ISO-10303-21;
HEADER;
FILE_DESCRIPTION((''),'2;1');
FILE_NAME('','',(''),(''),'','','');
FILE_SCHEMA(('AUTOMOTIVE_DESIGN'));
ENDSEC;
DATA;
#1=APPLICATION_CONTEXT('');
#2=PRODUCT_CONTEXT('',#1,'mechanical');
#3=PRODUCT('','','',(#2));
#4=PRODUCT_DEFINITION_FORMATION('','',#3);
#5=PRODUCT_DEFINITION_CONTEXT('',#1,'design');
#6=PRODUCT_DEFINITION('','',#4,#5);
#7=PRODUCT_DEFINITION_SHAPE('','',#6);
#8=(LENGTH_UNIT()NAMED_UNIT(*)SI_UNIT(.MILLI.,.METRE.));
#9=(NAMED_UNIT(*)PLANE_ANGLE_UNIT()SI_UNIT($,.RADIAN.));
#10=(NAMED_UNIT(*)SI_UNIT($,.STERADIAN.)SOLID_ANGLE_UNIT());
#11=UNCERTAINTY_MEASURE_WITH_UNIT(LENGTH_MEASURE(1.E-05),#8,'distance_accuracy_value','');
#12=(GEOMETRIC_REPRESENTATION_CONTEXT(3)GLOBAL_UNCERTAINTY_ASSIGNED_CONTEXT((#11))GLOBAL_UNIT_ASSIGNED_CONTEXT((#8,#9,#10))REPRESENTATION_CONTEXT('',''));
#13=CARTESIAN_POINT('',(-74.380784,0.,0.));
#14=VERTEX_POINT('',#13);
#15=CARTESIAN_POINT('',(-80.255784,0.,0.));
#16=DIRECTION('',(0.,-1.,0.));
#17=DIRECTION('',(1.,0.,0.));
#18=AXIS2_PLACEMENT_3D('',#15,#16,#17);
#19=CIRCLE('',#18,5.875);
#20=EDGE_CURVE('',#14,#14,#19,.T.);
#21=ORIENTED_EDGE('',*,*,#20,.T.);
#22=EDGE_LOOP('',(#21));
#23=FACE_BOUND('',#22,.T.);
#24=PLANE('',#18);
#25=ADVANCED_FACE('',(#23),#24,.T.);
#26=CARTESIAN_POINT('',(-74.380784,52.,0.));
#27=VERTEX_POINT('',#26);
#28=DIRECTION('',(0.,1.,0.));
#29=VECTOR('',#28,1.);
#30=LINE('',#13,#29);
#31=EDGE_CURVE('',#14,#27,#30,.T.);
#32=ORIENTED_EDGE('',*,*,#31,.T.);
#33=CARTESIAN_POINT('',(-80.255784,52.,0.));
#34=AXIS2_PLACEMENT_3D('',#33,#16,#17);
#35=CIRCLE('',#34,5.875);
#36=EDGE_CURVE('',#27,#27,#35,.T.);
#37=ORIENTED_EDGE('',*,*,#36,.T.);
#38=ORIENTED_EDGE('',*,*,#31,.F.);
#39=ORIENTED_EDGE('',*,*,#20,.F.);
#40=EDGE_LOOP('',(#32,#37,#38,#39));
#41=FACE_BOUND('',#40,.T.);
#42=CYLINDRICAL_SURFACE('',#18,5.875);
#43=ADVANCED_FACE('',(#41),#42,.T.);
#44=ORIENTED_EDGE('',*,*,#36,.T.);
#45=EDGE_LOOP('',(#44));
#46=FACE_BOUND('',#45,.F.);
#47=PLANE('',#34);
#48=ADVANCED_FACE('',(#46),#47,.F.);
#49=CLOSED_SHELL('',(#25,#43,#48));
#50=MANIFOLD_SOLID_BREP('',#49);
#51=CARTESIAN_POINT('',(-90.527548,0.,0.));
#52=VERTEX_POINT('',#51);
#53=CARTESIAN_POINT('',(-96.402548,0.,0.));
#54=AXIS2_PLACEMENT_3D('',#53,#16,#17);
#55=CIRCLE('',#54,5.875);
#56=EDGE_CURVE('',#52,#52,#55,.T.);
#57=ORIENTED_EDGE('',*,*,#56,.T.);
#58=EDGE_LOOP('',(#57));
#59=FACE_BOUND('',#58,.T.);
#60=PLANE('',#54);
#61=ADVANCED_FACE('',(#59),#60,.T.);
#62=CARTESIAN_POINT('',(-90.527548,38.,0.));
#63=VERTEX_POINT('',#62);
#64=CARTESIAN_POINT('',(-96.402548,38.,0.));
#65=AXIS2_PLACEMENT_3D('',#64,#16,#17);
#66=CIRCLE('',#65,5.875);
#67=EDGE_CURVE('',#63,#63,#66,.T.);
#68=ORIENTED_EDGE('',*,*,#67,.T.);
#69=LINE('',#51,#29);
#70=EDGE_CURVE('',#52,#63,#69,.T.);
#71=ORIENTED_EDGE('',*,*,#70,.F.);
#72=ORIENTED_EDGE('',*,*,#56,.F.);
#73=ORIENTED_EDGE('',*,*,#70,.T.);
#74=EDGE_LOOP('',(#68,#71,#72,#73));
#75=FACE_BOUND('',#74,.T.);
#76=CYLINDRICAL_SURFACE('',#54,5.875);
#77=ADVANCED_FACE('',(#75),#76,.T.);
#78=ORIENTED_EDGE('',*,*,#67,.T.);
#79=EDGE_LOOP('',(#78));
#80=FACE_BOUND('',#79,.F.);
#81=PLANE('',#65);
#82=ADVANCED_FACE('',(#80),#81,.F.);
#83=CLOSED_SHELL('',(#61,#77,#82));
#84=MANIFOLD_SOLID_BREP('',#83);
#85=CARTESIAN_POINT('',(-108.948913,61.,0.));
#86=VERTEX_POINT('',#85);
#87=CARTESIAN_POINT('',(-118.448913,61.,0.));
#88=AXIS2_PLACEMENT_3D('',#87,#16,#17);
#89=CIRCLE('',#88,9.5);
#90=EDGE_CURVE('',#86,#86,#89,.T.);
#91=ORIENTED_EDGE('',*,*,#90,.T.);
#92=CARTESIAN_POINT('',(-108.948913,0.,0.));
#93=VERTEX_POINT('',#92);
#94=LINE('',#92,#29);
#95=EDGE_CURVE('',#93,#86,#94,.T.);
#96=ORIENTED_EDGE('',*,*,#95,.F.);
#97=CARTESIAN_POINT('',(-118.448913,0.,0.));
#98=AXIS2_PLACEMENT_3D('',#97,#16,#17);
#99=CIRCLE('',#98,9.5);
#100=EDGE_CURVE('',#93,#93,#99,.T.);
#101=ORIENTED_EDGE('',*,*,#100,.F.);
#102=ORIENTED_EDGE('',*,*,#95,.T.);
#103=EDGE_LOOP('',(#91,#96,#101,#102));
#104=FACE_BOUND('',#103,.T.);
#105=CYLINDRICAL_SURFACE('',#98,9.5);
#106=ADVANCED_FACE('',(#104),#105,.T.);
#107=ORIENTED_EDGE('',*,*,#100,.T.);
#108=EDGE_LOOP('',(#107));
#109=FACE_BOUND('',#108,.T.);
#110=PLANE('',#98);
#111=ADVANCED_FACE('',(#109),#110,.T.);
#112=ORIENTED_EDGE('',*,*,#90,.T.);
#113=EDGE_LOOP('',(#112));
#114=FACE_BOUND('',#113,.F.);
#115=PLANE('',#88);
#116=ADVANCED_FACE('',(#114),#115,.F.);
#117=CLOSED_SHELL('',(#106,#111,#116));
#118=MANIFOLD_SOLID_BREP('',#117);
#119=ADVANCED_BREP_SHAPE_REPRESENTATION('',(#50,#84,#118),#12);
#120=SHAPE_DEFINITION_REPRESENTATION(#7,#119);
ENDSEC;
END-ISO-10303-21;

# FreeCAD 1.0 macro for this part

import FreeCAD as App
import Part
import Sketcher

V = App.Vector

doc = App.newDocument("Part")
body = doc.addObject("PartDesign::Body", "Body")

# Sketch on XZ plane
sketch1 = body.newObject("Sketcher::SketchObject", "Sketch")
sketch1.AttachmentSupport = (doc.getObject("XZ_Plane"), [""])
sketch1.MapMode = "FlatFace"
sketch1.addGeometry(Part.Circle(V(-118, 0, 0), V(0, 0, 1), 10), False)
sketch1.addConstraint([
    Sketcher.Constraint("PointOnObject", 0, 3, -1),
    Sketcher.Constraint("Diameter", 0, 19.0),
    Sketcher.Constraint("DistanceX", 0, 3, -1, 1, 118.448913),
])
pad1 = body.newObject("PartDesign::Pad", "Pad")
pad1.Profile = sketch1
pad1.Length = 61
pad1.Reversed = True
body2 = doc.addObject("PartDesign::Body", "Body001")

# Sketch on XZ plane
sketch2 = body2.newObject("Sketcher::SketchObject", "Sketch001")
sketch2.AttachmentSupport = (doc.getObject("XZ_Plane001"), [""])
sketch2.MapMode = "FlatFace"
sketch2.addGeometry(Part.Circle(V(-96, 0, 0), V(0, 0, 1), 6), False)
sketch2.addConstraint([
    Sketcher.Constraint("PointOnObject", 0, 3, -1),
    Sketcher.Constraint("Diameter", 0, 11.75),
    Sketcher.Constraint("DistanceX", 0, 3, -1, 1, 96.402548),
])
pad2 = body2.newObject("PartDesign::Pad", "Pad001")
pad2.Profile = sketch2
pad2.Length = 38
pad2.Reversed = True
body3 = doc.addObject("PartDesign::Body", "Body002")

# Sketch on XZ plane
sketch3 = body3.newObject("Sketcher::SketchObject", "Sketch002")
sketch3.AttachmentSupport = (doc.getObject("XZ_Plane002"), [""])
sketch3.MapMode = "FlatFace"
sketch3.addGeometry(Part.Circle(V(-80, 0, 0), V(0, 0, 1), 6), False)
sketch3.addConstraint([
    Sketcher.Constraint("PointOnObject", 0, 3, -1),
    Sketcher.Constraint("Diameter", 0, 11.75),
    Sketcher.Constraint("DistanceX", 0, 3, -1, 1, 80.255784),
])
pad3 = body3.newObject("PartDesign::Pad", "Pad002")
pad3.Profile = sketch3
pad3.Length = 52
pad3.Reversed = True

doc.recompute()
